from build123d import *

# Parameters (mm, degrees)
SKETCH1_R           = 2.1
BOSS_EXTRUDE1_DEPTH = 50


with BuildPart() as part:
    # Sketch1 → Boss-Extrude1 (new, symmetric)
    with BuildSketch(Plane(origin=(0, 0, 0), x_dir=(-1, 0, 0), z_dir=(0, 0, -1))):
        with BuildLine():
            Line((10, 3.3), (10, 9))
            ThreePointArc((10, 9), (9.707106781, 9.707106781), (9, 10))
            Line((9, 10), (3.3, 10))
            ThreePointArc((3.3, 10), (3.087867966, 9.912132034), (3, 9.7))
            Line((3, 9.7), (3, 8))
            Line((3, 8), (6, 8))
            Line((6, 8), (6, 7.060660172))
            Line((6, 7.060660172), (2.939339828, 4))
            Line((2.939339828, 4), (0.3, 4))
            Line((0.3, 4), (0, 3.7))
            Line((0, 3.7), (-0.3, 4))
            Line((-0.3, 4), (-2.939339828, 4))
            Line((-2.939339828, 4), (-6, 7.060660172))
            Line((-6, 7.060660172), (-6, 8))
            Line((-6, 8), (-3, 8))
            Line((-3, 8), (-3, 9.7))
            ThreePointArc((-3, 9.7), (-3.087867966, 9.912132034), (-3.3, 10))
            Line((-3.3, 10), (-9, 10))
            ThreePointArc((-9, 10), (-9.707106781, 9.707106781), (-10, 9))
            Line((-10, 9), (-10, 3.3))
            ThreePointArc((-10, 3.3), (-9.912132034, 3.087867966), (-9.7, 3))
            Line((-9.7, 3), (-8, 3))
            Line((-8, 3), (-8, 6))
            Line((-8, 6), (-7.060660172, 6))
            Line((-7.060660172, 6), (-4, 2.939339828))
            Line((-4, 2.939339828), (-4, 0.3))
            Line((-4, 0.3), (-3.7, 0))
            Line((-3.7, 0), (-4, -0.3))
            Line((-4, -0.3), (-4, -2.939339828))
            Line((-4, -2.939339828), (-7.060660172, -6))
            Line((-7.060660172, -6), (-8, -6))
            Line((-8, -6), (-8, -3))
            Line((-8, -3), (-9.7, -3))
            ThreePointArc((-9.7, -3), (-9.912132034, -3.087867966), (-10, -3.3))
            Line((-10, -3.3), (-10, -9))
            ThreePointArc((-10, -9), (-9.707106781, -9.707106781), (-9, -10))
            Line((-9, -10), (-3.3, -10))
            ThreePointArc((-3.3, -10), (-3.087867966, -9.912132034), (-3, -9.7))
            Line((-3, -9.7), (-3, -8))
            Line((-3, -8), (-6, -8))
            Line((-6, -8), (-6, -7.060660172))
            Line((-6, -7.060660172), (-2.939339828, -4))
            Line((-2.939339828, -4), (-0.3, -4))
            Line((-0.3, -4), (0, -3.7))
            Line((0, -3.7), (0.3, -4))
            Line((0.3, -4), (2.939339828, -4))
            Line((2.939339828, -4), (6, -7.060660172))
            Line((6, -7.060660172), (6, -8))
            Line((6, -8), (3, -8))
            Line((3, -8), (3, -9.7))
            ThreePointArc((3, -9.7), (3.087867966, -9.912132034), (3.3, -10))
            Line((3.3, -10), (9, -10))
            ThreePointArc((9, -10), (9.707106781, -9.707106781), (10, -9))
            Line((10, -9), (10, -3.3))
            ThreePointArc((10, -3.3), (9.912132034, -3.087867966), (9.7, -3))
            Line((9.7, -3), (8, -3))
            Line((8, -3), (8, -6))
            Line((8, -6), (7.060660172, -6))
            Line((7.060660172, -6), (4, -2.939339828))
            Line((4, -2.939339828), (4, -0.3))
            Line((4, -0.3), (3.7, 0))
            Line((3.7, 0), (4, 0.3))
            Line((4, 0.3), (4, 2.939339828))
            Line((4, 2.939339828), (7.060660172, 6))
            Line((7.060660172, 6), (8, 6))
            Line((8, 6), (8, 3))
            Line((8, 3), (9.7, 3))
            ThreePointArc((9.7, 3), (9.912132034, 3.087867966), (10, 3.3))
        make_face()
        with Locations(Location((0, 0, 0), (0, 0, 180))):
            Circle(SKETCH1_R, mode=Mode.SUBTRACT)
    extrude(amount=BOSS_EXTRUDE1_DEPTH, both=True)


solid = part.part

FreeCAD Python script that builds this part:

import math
import FreeCAD as App
import Part
import Sketcher

doc = App.newDocument("Part")
body = doc.addObject("PartDesign::Body", "Body")

sketch1 = body.newObject("Sketcher::SketchObject", "Sketch")
sketch1.AttachmentSupport = (doc.getObject("XY_Plane"), [""])
sketch1.MapMode = "FlatFace"
sketch1.addGeometry([
    Part.LineSegment(App.Vector(-10, 3.3, 0), App.Vector(-10, 9, 0)),
    Part.ArcOfCircle(Part.Circle(App.Vector(-9, 9, 0), App.Vector(0, 0, 1), 1), math.radians(90), math.radians(180)),
    Part.LineSegment(App.Vector(-9, 10, 0), App.Vector(-3.3, 10, 0)),
    Part.ArcOfCircle(Part.Circle(App.Vector(-3.3, 9.7, 0), App.Vector(0, 0, 1), 0.3), math.radians(0), math.radians(90)),
    Part.LineSegment(App.Vector(-3, 9.7, 0), App.Vector(-3, 8, 0)),
    Part.LineSegment(App.Vector(-3, 8, 0), App.Vector(-6, 8, 0)),
    Part.LineSegment(App.Vector(-6, 8, 0), App.Vector(-6, 7.06066, 0)),
    Part.LineSegment(App.Vector(-6, 7.06066, 0), App.Vector(-2.93934, 4, 0)),
    Part.LineSegment(App.Vector(-2.93934, 4, 0), App.Vector(-0.3, 4, 0)),
    Part.LineSegment(App.Vector(-0.3, 4, 0), App.Vector(0, 3.7, 0)),
    Part.LineSegment(App.Vector(0, 3.7, 0), App.Vector(0.3, 4, 0)),
    Part.LineSegment(App.Vector(0.3, 4, 0), App.Vector(2.93934, 4, 0)),
    Part.LineSegment(App.Vector(2.93934, 4, 0), App.Vector(6, 7.06066, 0)),
    Part.LineSegment(App.Vector(6, 7.06066, 0), App.Vector(6, 8, 0)),
    Part.LineSegment(App.Vector(6, 8, 0), App.Vector(3, 8, 0)),
    Part.LineSegment(App.Vector(3, 8, 0), App.Vector(3, 9.7, 0)),
    Part.ArcOfCircle(Part.Circle(App.Vector(3.3, 9.7, 0), App.Vector(0, 0, 1), 0.3), math.radians(90), math.radians(180)),
    Part.LineSegment(App.Vector(3.3, 10, 0), App.Vector(9, 10, 0)),
    Part.ArcOfCircle(Part.Circle(App.Vector(9, 9, 0), App.Vector(0, 0, 1), 1), math.radians(0), math.radians(90)),
    Part.LineSegment(App.Vector(10, 9, 0), App.Vector(10, 3.3, 0)),
    Part.ArcOfCircle(Part.Circle(App.Vector(9.7, 3.3, 0), App.Vector(0, 0, 1), 0.3), math.radians(-90), math.radians(0)),
    Part.LineSegment(App.Vector(9.7, 3, 0), App.Vector(8, 3, 0)),
    Part.LineSegment(App.Vector(8, 3, 0), App.Vector(8, 6, 0)),
    Part.LineSegment(App.Vector(8, 6, 0), App.Vector(7.06066, 6, 0)),
    Part.LineSegment(App.Vector(7.06066, 6, 0), App.Vector(4, 2.93934, 0)),
    Part.LineSegment(App.Vector(4, 2.93934, 0), App.Vector(4, 0.3, 0)),
    Part.LineSegment(App.Vector(4, 0.3, 0), App.Vector(3.7, 0, 0)),
    Part.LineSegment(App.Vector(3.7, 0, 0), App.Vector(4, -0.3, 0)),
    Part.LineSegment(App.Vector(4, -0.3, 0), App.Vector(4, -2.93934, 0)),
    Part.LineSegment(App.Vector(4, -2.93934, 0), App.Vector(7.06066, -6, 0)),
    Part.LineSegment(App.Vector(7.06066, -6, 0), App.Vector(8, -6, 0)),
    Part.LineSegment(App.Vector(8, -6, 0), App.Vector(8, -3, 0)),
    Part.LineSegment(App.Vector(8, -3, 0), App.Vector(9.7, -3, 0)),
    Part.ArcOfCircle(Part.Circle(App.Vector(9.7, -3.3, 0), App.Vector(0, 0, 1), 0.3), math.radians(0), math.radians(90)),
    Part.LineSegment(App.Vector(10, -3.3, 0), App.Vector(10, -9, 0)),
    Part.ArcOfCircle(Part.Circle(App.Vector(9, -9, 0), App.Vector(0, 0, 1), 1), math.radians(-90), math.radians(0)),
    Part.LineSegment(App.Vector(9, -10, 0), App.Vector(3.3, -10, 0)),
    Part.ArcOfCircle(Part.Circle(App.Vector(3.3, -9.7, 0), App.Vector(0, 0, 1), 0.3), math.radians(-180), math.radians(-90)),
    Part.LineSegment(App.Vector(3, -9.7, 0), App.Vector(3, -8, 0)),
    Part.LineSegment(App.Vector(3, -8, 0), App.Vector(6, -8, 0)),
    Part.LineSegment(App.Vector(6, -8, 0), App.Vector(6, -7.06066, 0)),
    Part.LineSegment(App.Vector(6, -7.06066, 0), App.Vector(2.93934, -4, 0)),
    Part.LineSegment(App.Vector(2.93934, -4, 0), App.Vector(0.3, -4, 0)),
    Part.LineSegment(App.Vector(0.3, -4, 0), App.Vector(0, -3.7, 0)),
    Part.LineSegment(App.Vector(0, -3.7, 0), App.Vector(-0.3, -4, 0)),
    Part.LineSegment(App.Vector(-0.3, -4, 0), App.Vector(-2.93934, -4, 0)),
    Part.LineSegment(App.Vector(-2.93934, -4, 0), App.Vector(-6, -7.06066, 0)),
    Part.LineSegment(App.Vector(-6, -7.06066, 0), App.Vector(-6, -8, 0)),
    Part.LineSegment(App.Vector(-6, -8, 0), App.Vector(-3, -8, 0)),
    Part.LineSegment(App.Vector(-3, -8, 0), App.Vector(-3, -9.7, 0)),
    Part.ArcOfCircle(Part.Circle(App.Vector(-3.3, -9.7, 0), App.Vector(0, 0, 1), 0.3), math.radians(-90), math.radians(0)),
    Part.LineSegment(App.Vector(-3.3, -10, 0), App.Vector(-9, -10, 0)),
    Part.ArcOfCircle(Part.Circle(App.Vector(-9, -9, 0), App.Vector(0, 0, 1), 1), math.radians(-180), math.radians(-90)),
    Part.LineSegment(App.Vector(-10, -9, 0), App.Vector(-10, -3.3, 0)),
    Part.ArcOfCircle(Part.Circle(App.Vector(-9.7, -3.3, 0), App.Vector(0, 0, 1), 0.3), math.radians(90), math.radians(180)),
    Part.LineSegment(App.Vector(-9.7, -3, 0), App.Vector(-8, -3, 0)),
    Part.LineSegment(App.Vector(-8, -3, 0), App.Vector(-8, -6, 0)),
    Part.LineSegment(App.Vector(-8, -6, 0), App.Vector(-7.06066, -6, 0)),
    Part.LineSegment(App.Vector(-7.06066, -6, 0), App.Vector(-4, -2.93934, 0)),
    Part.LineSegment(App.Vector(-4, -2.93934, 0), App.Vector(-4, -0.3, 0)),
    Part.LineSegment(App.Vector(-4, -0.3, 0), App.Vector(-3.7, 0, 0)),
    Part.LineSegment(App.Vector(-3.7, 0, 0), App.Vector(-4, 0.3, 0)),
    Part.LineSegment(App.Vector(-4, 0.3, 0), App.Vector(-4, 2.93934, 0)),
    Part.LineSegment(App.Vector(-4, 2.93934, 0), App.Vector(-7.06066, 6, 0)),
    Part.LineSegment(App.Vector(-7.06066, 6, 0), App.Vector(-8, 6, 0)),
    Part.LineSegment(App.Vector(-8, 6, 0), App.Vector(-8, 3, 0)),
    Part.LineSegment(App.Vector(-8, 3, 0), App.Vector(-9.7, 3, 0)),
    Part.ArcOfCircle(Part.Circle(App.Vector(-9.7, 3.3, 0), App.Vector(0, 0, 1), 0.3), math.radians(-180), math.radians(-90)),
    Part.Circle(App.Vector(0, 0, 0), App.Vector(0, 0, 1), 2.1),
], False)
sketch1.addConstraint([
    Sketcher.Constraint("Tangent", 0, 2, 1, 2),
    Sketcher.Constraint("Tangent", 1, 1, 2, 1),
    Sketcher.Constraint("Tangent", 2, 2, 3, 2),
    Sketcher.Constraint("Tangent", 3, 1, 4, 1),
    Sketcher.Constraint("Coincident", 4, 2, 5, 1),
    Sketcher.Constraint("Coincident", 5, 2, 6, 1),
    Sketcher.Constraint("Coincident", 6, 2, 7, 1),
    Sketcher.Constraint("Coincident", 7, 2, 8, 1),
    Sketcher.Constraint("Coincident", 8, 2, 9, 1),
    Sketcher.Constraint("Coincident", 9, 2, 10, 1),
    Sketcher.Constraint("Coincident", 10, 2, 11, 1),
    Sketcher.Constraint("Coincident", 11, 2, 12, 1),
    Sketcher.Constraint("Coincident", 12, 2, 13, 1),
    Sketcher.Constraint("Coincident", 13, 2, 14, 1),
    Sketcher.Constraint("Coincident", 14, 2, 15, 1),
    Sketcher.Constraint("Tangent", 15, 2, 16, 2),
    Sketcher.Constraint("Tangent", 16, 1, 17, 1),
    Sketcher.Constraint("Tangent", 17, 2, 18, 2),
    Sketcher.Constraint("Tangent", 18, 1, 19, 1),
    Sketcher.Constraint("Tangent", 19, 2, 20, 2),
    Sketcher.Constraint("Tangent", 20, 1, 21, 1),
    Sketcher.Constraint("Coincident", 21, 2, 22, 1),
    Sketcher.Constraint("Coincident", 22, 2, 23, 1),
    Sketcher.Constraint("Coincident", 23, 2, 24, 1),
    Sketcher.Constraint("Coincident", 24, 2, 25, 1),
    Sketcher.Constraint("Coincident", 25, 2, 26, 1),
    Sketcher.Constraint("Coincident", 26, 2, 27, 1),
    Sketcher.Constraint("Coincident", 27, 2, 28, 1),
    Sketcher.Constraint("Coincident", 28, 2, 29, 1),
    Sketcher.Constraint("Coincident", 29, 2, 30, 1),
    Sketcher.Constraint("Coincident", 30, 2, 31, 1),
    Sketcher.Constraint("Coincident", 31, 2, 32, 1),
    Sketcher.Constraint("Tangent", 32, 2, 33, 2),
    Sketcher.Constraint("Tangent", 33, 1, 34, 1),
    Sketcher.Constraint("Tangent", 34, 2, 35, 2),
    Sketcher.Constraint("Tangent", 35, 1, 36, 1),
    Sketcher.Constraint("Tangent", 36, 2, 37, 2),
    Sketcher.Constraint("Tangent", 37, 1, 38, 1),
    Sketcher.Constraint("Coincident", 38, 2, 39, 1),
    Sketcher.Constraint("Coincident", 39, 2, 40, 1),
    Sketcher.Constraint("Coincident", 40, 2, 41, 1),
    Sketcher.Constraint("Coincident", 41, 2, 42, 1),
    Sketcher.Constraint("Coincident", 42, 2, 43, 1),
    Sketcher.Constraint("Coincident", 43, 2, 44, 1),
    Sketcher.Constraint("Coincident", 44, 2, 45, 1),
    Sketcher.Constraint("Coincident", 45, 2, 46, 1),
    Sketcher.Constraint("Coincident", 46, 2, 47, 1),
    Sketcher.Constraint("Coincident", 47, 2, 48, 1),
    Sketcher.Constraint("Coincident", 48, 2, 49, 1),
    Sketcher.Constraint("Tangent", 49, 2, 50, 2),
    Sketcher.Constraint("Tangent", 50, 1, 51, 1),
    Sketcher.Constraint("Tangent", 51, 2, 52, 2),
    Sketcher.Constraint("Tangent", 52, 1, 53, 1),
    Sketcher.Constraint("Tangent", 53, 2, 54, 2),
    Sketcher.Constraint("Tangent", 54, 1, 55, 1),
    Sketcher.Constraint("Coincident", 55, 2, 56, 1),
    Sketcher.Constraint("Coincident", 56, 2, 57, 1),
    Sketcher.Constraint("Coincident", 57, 2, 58, 1),
    Sketcher.Constraint("Coincident", 58, 2, 59, 1),
    Sketcher.Constraint("Coincident", 59, 2, 60, 1),
    Sketcher.Constraint("Coincident", 60, 2, 61, 1),
    Sketcher.Constraint("Coincident", 61, 2, 62, 1),
    Sketcher.Constraint("Coincident", 62, 2, 63, 1),
    Sketcher.Constraint("Coincident", 63, 2, 64, 1),
    Sketcher.Constraint("Coincident", 64, 2, 65, 1),
    Sketcher.Constraint("Coincident", 65, 2, 66, 1),
    Sketcher.Constraint("Tangent", 66, 2, 67, 2),
    Sketcher.Constraint("Tangent", 67, 1, 0, 1),
    Sketcher.Constraint("Vertical", 0),
    Sketcher.Constraint("Horizontal", 2),
    Sketcher.Constraint("Vertical", 4),
    Sketcher.Constraint("Horizontal", 5),
    Sketcher.Constraint("Vertical", 6),
    Sketcher.Constraint("Horizontal", 8),
    Sketcher.Constraint("Horizontal", 11),
    Sketcher.Constraint("Vertical", 13),
    Sketcher.Constraint("Horizontal", 14),
    Sketcher.Constraint("Vertical", 15),
    Sketcher.Constraint("Horizontal", 17),
    Sketcher.Constraint("Vertical", 19),
    Sketcher.Constraint("Horizontal", 21),
    Sketcher.Constraint("Vertical", 22),
    Sketcher.Constraint("Horizontal", 23),
    Sketcher.Constraint("Vertical", 25),
    Sketcher.Constraint("Vertical", 28),
    Sketcher.Constraint("Horizontal", 30),
    Sketcher.Constraint("Vertical", 31),
    Sketcher.Constraint("Horizontal", 32),
    Sketcher.Constraint("Vertical", 34),
    Sketcher.Constraint("Horizontal", 36),
    Sketcher.Constraint("Vertical", 38),
    Sketcher.Constraint("Horizontal", 39),
    Sketcher.Constraint("Vertical", 40),
    Sketcher.Constraint("Horizontal", 42),
    Sketcher.Constraint("Horizontal", 45),
    Sketcher.Constraint("Vertical", 47),
    Sketcher.Constraint("Horizontal", 48),
    Sketcher.Constraint("Vertical", 49),
    Sketcher.Constraint("Horizontal", 51),
    Sketcher.Constraint("Vertical", 53),
    Sketcher.Constraint("Horizontal", 55),
    Sketcher.Constraint("Vertical", 56),
    Sketcher.Constraint("Horizontal", 57),
    Sketcher.Constraint("Vertical", 59),
    Sketcher.Constraint("Vertical", 62),
    Sketcher.Constraint("Horizontal", 64),
    Sketcher.Constraint("Vertical", 65),
    Sketcher.Constraint("Horizontal", 66),
    Sketcher.Constraint("Coincident", 68, 3, -1, 1),
    Sketcher.Constraint("Equal", 3, 16),
    Sketcher.Constraint("Equal", 1, 18),
    Sketcher.Constraint("Equal", 16, 20),
    Sketcher.Constraint("Equal", 20, 33),
    Sketcher.Constraint("Equal", 18, 35),
    Sketcher.Constraint("Equal", 33, 37),
    Sketcher.Constraint("Equal", 37, 50),
    Sketcher.Constraint("Equal", 35, 52),
    Sketcher.Constraint("Equal", 50, 54),
    Sketcher.Constraint("Equal", 54, 67),
    Sketcher.Constraint("Symmetric", 1, 3, 35, 3, -1, 1),
    Sketcher.Constraint("Symmetric", 16, 3, 50, 3, -1, 1),
    Sketcher.Constraint("Symmetric", 20, 3, 54, 3, -1, 1),
    Sketcher.Constraint("Symmetric", 4, 2, 38, 2, -1, 1),
    Sketcher.Constraint("Symmetric", 6, 2, 40, 2, -1, 1),
    Sketcher.Constraint("Symmetric", 7, 2, 41, 2, -1, 1),
    Sketcher.Constraint("Symmetric", 9, 2, 43, 2, -1, 1),
    Sketcher.Constraint("Symmetric", 10, 2, 44, 2, -1, 1),
    Sketcher.Constraint("Symmetric", 12, 2, 46, 2, -1, 1),
    Sketcher.Constraint("Symmetric", 22, 2, 56, 2, -1, 1),
    Sketcher.Constraint("Symmetric", 24, 2, 58, 2, -1, 1),
    Sketcher.Constraint("Symmetric", 26, 2, 60, 2, -1, 1),
    Sketcher.Constraint("Symmetric", 27, 2, 61, 2, -1, 1),
    Sketcher.Constraint("Symmetric", 29, 2, 63, 2, -1, 1),
    Sketcher.Constraint("Symmetric", 31, 2, 65, 2, -1, 1),
    Sketcher.Constraint("Symmetric", 3, 3, 16, 3, -2),
    Sketcher.Constraint("Symmetric", 33, 3, 54, 3, -2),
    Sketcher.Constraint("Symmetric", 8, 2, 10, 2, -2),
    Sketcher.Constraint("Symmetric", 6, 2, 12, 2, -2),
    Sketcher.Constraint("Symmetric", 30, 2, 56, 2, -2),
    Sketcher.Constraint("Symmetric", 28, 2, 58, 2, -2),
    Sketcher.Constraint("PointOnObject", 9, 2, -2),
    Sketcher.Constraint("PointOnObject", 26, 2, -1),
    Sketcher.Constraint("Parallel", 7, 9),
    Sketcher.Constraint("Perpendicular", 9, 10),
    Sketcher.Constraint("Parallel", 10, 12),
    Sketcher.Constraint("Parallel", 12, 24),
    Sketcher.Constraint("Parallel", 24, 26),
    Sketcher.Constraint("Perpendicular", 26, 27),
    Sketcher.Constraint("Parallel", 27, 29),
    Sketcher.Constraint("Parallel", 41, 43),
    Sketcher.Constraint("Parallel", 44, 46),
    Sketcher.Constraint("Parallel", 46, 58),
    Sketcher.Constraint("Parallel", 58, 60),
    Sketcher.Constraint("Parallel", 61, 63),
    Sketcher.Constraint("Horizontal", 5, 2, 13, 2),
    Sketcher.Constraint("Horizontal", 39, 2, 47, 2),
    Sketcher.Constraint("Equal", 51, 0),
    Sketcher.Constraint("Equal", 66, 4),
    Sketcher.Constraint("Equal", 64, 6),
    Sketcher.Constraint("Equal", 48, 22),
    Sketcher.Constraint("Equal", 45, 25),
    Sketcher.Constraint("Equal", 12, 24),
    Sketcher.Constraint("Equal", 10, 26),
    Sketcher.Constraint("Radius", 1, 1.0),
    Sketcher.Constraint("Diameter", 68, 4.2),
    Sketcher.Constraint("Radius", 3, 0.3),
    Sketcher.Constraint("DistanceX", 5, 2, 5, 1, 3.0),
    Sketcher.Constraint("DistanceX", 2, 1, 2, 2, 5.7),
    Sketcher.Constraint("DistanceX", 21, 2, 21, 1, 1.7),
    Sketcher.Constraint("DistanceX", 1, 3, -1, 1, 9.0),
    Sketcher.Constraint("DistanceY", -1, 1, 7, 2, 4.0),
    Sketcher.Constraint("DistanceX", 8, 2, -1, 1, 0.3),
    Sketcher.Constraint("DistanceX", 8, 1, 8, 2, 2.63934),
])
pad1 = body.newObject("PartDesign::Pad", "Pad")
pad1.Profile = sketch1
pad1.Length = 100
pad1.Midplane = True

doc.recompute()
